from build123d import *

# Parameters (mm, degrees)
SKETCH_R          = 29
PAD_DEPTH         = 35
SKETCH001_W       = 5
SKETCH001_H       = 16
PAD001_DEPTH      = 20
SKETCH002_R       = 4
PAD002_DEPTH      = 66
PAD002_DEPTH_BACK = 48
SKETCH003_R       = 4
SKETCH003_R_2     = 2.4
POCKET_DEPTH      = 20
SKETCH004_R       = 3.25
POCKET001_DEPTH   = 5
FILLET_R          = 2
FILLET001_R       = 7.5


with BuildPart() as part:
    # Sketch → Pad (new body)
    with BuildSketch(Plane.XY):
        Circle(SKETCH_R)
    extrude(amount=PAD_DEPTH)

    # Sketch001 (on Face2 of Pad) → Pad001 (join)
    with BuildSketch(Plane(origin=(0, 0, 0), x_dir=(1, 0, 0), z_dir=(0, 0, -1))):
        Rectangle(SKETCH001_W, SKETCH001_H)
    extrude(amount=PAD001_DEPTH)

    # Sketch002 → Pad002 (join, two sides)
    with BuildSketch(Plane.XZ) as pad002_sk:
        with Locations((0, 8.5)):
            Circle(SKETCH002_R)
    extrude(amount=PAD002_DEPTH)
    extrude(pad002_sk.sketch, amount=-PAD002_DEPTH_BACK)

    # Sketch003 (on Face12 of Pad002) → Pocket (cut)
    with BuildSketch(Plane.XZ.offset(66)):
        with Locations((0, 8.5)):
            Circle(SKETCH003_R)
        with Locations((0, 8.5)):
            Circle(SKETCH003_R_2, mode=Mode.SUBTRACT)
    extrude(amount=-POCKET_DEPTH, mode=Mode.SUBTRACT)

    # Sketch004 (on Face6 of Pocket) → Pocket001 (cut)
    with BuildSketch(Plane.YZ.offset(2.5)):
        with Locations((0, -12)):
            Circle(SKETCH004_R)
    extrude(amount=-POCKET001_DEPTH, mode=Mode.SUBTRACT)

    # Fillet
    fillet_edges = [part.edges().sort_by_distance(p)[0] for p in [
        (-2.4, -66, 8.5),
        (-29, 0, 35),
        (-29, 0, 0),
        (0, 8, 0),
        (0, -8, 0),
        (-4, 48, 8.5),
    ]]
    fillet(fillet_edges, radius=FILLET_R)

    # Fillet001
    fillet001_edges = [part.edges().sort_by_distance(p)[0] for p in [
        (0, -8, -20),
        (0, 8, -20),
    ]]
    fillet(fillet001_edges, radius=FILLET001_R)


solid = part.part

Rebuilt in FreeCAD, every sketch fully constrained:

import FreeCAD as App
import Part
import Sketcher

V = App.Vector
Q = App.Units.Quantity


def edges_at(feature, points):
    """Names of the edges that pass closest to the given points."""
    edges = feature.Shape.Edges
    near = lambda p: min(range(len(edges)), key=lambda i: edges[i].distToShape(Part.Vertex(*p))[0])
    return sorted({f"Edge{near(p) + 1}" for p in points})


def add_polygon(sketch, points):
    """Adds a closed chain of lines whose ends are joined by coincident constraints."""
    first, n = sketch.GeometryCount, len(points)
    for a, b in zip(points, points[1:] + points[:1]):
        sketch.addGeometry(Part.LineSegment(App.Vector(*a, 0), App.Vector(*b, 0)), False)
    for i in range(n):
        sketch.addConstraint(Sketcher.Constraint("Coincident", first + i, 2, first + (i + 1) % n, 1))

doc = App.newDocument("Part")
body = doc.addObject("PartDesign::Body", "Body")

sketch1 = body.newObject("Sketcher::SketchObject", "Sketch")
sketch1.AttachmentSupport = (doc.getObject("XY_Plane"), [""])
sketch1.MapMode = "FlatFace"
sketch1.addGeometry(Part.Circle(V(0, 0, 0), V(0, 0, 1), 29), False)
sketch1.addConstraint(Sketcher.Constraint("Coincident", 0, 3, -1, 1))
sketch1.addConstraint(Sketcher.Constraint("Diameter", 0, Q("58 mm")))
pad1 = body.newObject("PartDesign::Pad", "Pad")
pad1.Profile = sketch1
pad1.Length = 35

sketch2 = body.newObject("Sketcher::SketchObject", "Sketch001")
sketch2.AttachmentSupport = (doc.getObject("XY_Plane"), [""])
sketch2.MapMode = "FlatFace"
add_polygon(sketch2, [(-2, -8), (-2, 8), (2, 8), (2, -8)])
sketch2.addConstraint(Sketcher.Constraint("Vertical", 0))
sketch2.addConstraint(Sketcher.Constraint("Horizontal", 1))
sketch2.addConstraint(Sketcher.Constraint("Vertical", 2))
sketch2.addConstraint(Sketcher.Constraint("Horizontal", 3))
sketch2.addConstraint(Sketcher.Constraint("Symmetric", 0, 2, 2, 2, -1, 1))
sketch2.addConstraint(Sketcher.Constraint("DistanceX", 1, 1, 1, 2, Q("5 mm")))
sketch2.addConstraint(Sketcher.Constraint("DistanceY", 0, 1, 0, 2, Q("16 mm")))
pad2 = body.newObject("PartDesign::Pad", "Pad001")
pad2.Profile = sketch2
pad2.Length = 20
pad2.Reversed = True

sketch3 = body.newObject("Sketcher::SketchObject", "Sketch002")
sketch3.AttachmentSupport = (doc.getObject("XZ_Plane"), [""])
sketch3.MapMode = "FlatFace"
sketch3.addGeometry(Part.Circle(V(0, 8.5, 0), V(0, 0, 1), 4), False)
sketch3.addConstraint(Sketcher.Constraint("PointOnObject", 0, 3, -2))
sketch3.addConstraint(Sketcher.Constraint("Diameter", 0, Q("8 mm")))
sketch3.addConstraint(Sketcher.Constraint("DistanceY", -1, 1, 0, 3, Q("8.5 mm")))
pad3 = body.newObject("PartDesign::Pad", "Pad002")
pad3.Profile = sketch3
pad3.Type = "TwoLengths"
pad3.Length = 66
pad3.Length2 = 48

sketch4 = body.newObject("Sketcher::SketchObject", "Sketch003")
sketch4.AttachmentSupport = (doc.getObject("XZ_Plane"), [""])
sketch4.MapMode = "FlatFace"
sketch4.AttachmentOffset = App.Placement(V(0, 0, 66), App.Rotation())
sketch4.addGeometry(Part.Circle(V(0, 8.5, 0), V(0, 0, 1), 4), False)
sketch4.addGeometry(Part.Circle(V(0, 8.5, 0), V(0, 0, 1), 2.4), False)
sketch4.addConstraint(Sketcher.Constraint("Coincident", 1, 3, 0, 3))
sketch4.addConstraint(Sketcher.Constraint("PointOnObject", 0, 3, -2))
sketch4.addConstraint(Sketcher.Constraint("Diameter", 0, Q("8 mm")))
sketch4.addConstraint(Sketcher.Constraint("Diameter", 1, Q("4.8 mm")))
sketch4.addConstraint(Sketcher.Constraint("DistanceY", -1, 1, 0, 3, Q("8.5 mm")))
pocket1 = body.newObject("PartDesign::Pocket", "Pocket")
pocket1.Profile = sketch4
pocket1.Length = 20

sketch5 = body.newObject("Sketcher::SketchObject", "Sketch004")
sketch5.AttachmentSupport = (doc.getObject("YZ_Plane"), [""])
sketch5.MapMode = "FlatFace"
sketch5.AttachmentOffset = App.Placement(V(0, 0, 2.5), App.Rotation())
sketch5.addGeometry(Part.Circle(V(0, -12, 0), V(0, 0, 1), 3.2), False)
sketch5.addConstraint(Sketcher.Constraint("PointOnObject", 0, 3, -2))
sketch5.addConstraint(Sketcher.Constraint("Diameter", 0, Q("6.5 mm")))
sketch5.addConstraint(Sketcher.Constraint("DistanceY", 0, 3, -1, 1, Q("12 mm")))
pocket2 = body.newObject("PartDesign::Pocket", "Pocket001")
pocket2.Profile = sketch5
pocket2.Length = 5
doc.recompute()

fillet = body.newObject("PartDesign::Fillet", "Fillet")
fillet.Base = (pocket2, edges_at(pocket2, [
    (-2.4, -66, 8.5),
    (-29, 0, 35),
    (-29, 0, 0),
    (0, 8, 0),
    (0, -8, 0),
    (-4, 48, 8.5),
]))
fillet.Radius = 2
doc.recompute()

fillet2 = body.newObject("PartDesign::Fillet", "Fillet001")
fillet2.Base = (fillet, edges_at(fillet, [(0, -8, -20), (0, 8, -20)]))
fillet2.Radius = 7.5

doc.recompute()
